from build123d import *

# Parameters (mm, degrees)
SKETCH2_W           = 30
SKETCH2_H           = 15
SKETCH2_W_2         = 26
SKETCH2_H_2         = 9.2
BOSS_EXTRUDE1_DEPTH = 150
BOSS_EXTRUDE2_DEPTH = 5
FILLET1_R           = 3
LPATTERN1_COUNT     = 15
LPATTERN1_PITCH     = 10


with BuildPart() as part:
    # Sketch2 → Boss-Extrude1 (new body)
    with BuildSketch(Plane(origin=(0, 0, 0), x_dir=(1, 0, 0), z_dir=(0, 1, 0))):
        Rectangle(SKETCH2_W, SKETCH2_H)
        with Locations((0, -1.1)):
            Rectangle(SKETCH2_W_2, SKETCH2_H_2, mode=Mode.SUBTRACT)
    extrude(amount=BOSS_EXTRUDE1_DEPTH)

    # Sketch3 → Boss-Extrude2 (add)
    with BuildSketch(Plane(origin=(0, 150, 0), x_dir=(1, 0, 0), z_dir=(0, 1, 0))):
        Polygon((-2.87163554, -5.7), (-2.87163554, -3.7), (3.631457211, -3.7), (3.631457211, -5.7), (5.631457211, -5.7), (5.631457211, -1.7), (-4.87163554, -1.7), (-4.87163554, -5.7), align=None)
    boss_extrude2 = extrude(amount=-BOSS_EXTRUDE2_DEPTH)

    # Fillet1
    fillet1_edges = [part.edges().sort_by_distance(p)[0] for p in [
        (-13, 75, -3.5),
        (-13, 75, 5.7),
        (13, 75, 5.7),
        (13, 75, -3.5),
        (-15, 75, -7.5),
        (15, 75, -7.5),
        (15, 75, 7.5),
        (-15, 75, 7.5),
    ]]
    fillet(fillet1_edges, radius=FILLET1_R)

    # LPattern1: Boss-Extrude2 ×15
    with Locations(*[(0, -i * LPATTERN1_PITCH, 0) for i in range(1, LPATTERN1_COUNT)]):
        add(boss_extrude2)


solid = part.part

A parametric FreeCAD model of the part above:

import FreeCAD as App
import Part
import Sketcher

V = App.Vector


def edges_at(feature, points):
    """Names of the edges that pass closest to the given points."""
    edges = feature.Shape.Edges
    near = lambda p: min(range(len(edges)), key=lambda i: edges[i].distToShape(Part.Vertex(*p))[0])
    return sorted({f"Edge{near(p) + 1}" for p in points})


def add_polygon(sketch, points):
    """Adds a closed chain of lines whose ends are joined by coincident constraints."""
    first, n = sketch.GeometryCount, len(points)
    for a, b in zip(points, points[1:] + points[:1]):
        sketch.addGeometry(Part.LineSegment(App.Vector(*a, 0), App.Vector(*b, 0)), False)
    for i in range(n):
        sketch.addConstraint(Sketcher.Constraint("Coincident", first + i, 2, first + (i + 1) % n, 1))

doc = App.newDocument("Part")
params = doc.addObject("Spreadsheet::Sheet", "Params")
for row, (alias, value) in enumerate([
    ("sketch1_width", "30 mm"),
    ("sketch1_width2", "26 mm"),
    ("sketch1_height", "15 mm"),
    ("sketch1_height2", "9.2 mm"),
    ("pad1_length", "150 mm"),
    ("sketch2_width", "2 mm"),
    ("sketch2_height", "4 mm"),
    ("pad2_length", "5 mm"),
    ("fillet_radius", "3 mm"),
    ("linearpattern_pitch", "10 mm"),
], start=1):
    params.set(f"A{row}", alias)
    params.set(f"B{row}", "=" + value)
    params.setAlias(f"B{row}", alias)

body = doc.addObject("PartDesign::Body", "Body")

# Sketch on XZ plane
sketch1 = body.newObject("Sketcher::SketchObject", "Sketch")
sketch1.AttachmentSupport = (doc.getObject("XZ_Plane"), [""])
sketch1.MapMode = "FlatFace"
add_polygon(sketch1, [(-15, -8), (-15, 8), (15, 8), (15, -8)])  # lines 0-3
add_polygon(sketch1, [(13, 6), (-13, 6), (-13, -4), (13, -4)])  # lines 4-7
sketch1.addConstraint([
    Sketcher.Constraint("Vertical", 0),
    Sketcher.Constraint("Horizontal", 1),
    Sketcher.Constraint("Vertical", 2),
    Sketcher.Constraint("Horizontal", 3),
    Sketcher.Constraint("Horizontal", 4),
    Sketcher.Constraint("Vertical", 5),
    Sketcher.Constraint("Horizontal", 6),
    Sketcher.Constraint("Vertical", 7),
    Sketcher.Constraint("Symmetric", 0, 2, 2, 2, -1, 1),
    Sketcher.Constraint("DistanceX", 1, 1, 1, 2, 30.0),
    Sketcher.Constraint("DistanceX", 4, 2, 4, 1, 26.0),
    Sketcher.Constraint("DistanceY", 0, 1, 0, 2, 15.0),
    Sketcher.Constraint("DistanceY", 5, 2, 5, 1, 9.2),
    Sketcher.Constraint("DistanceX", 4, 2, -1, 1, 13.0),
    Sketcher.Constraint("DistanceY", 3, 2, 5, 2, 4.0),
])
sketch1.setExpression("Constraints[17]", "Params.sketch1_width")
sketch1.setExpression("Constraints[18]", "Params.sketch1_width2")
sketch1.setExpression("Constraints[19]", "Params.sketch1_height")
sketch1.setExpression("Constraints[20]", "Params.sketch1_height2")
pad1 = body.newObject("PartDesign::Pad", "Pad")
pad1.Profile = sketch1
pad1.setExpression("Length", "Params.pad1_length")
pad1.Reversed = True

# Sketch on XZ plane
sketch2 = body.newObject("Sketcher::SketchObject", "Sketch001")
sketch2.AttachmentSupport = (doc.getObject("XZ_Plane"), [""])
sketch2.MapMode = "FlatFace"
sketch2.AttachmentOffset = App.Placement(V(0, 0, -150), App.Rotation())
add_polygon(sketch2, [(-2.9, 5.7), (-2.9, 3.7), (3.6, 3.7), (3.6, 5.7), (5.6, 5.7), (5.6, 1.7), (-4.9, 1.7), (-4.9, 5.7)])  # lines 0-7
sketch2.addConstraint([
    Sketcher.Constraint("Vertical", 0),
    Sketcher.Constraint("Horizontal", 1),
    Sketcher.Constraint("Vertical", 2),
    Sketcher.Constraint("Horizontal", 3),
    Sketcher.Constraint("Vertical", 4),
    Sketcher.Constraint("Horizontal", 5),
    Sketcher.Constraint("Vertical", 6),
    Sketcher.Constraint("Horizontal", 7),
    Sketcher.Constraint("Horizontal", 3, 2, 6, 2),
    Sketcher.Constraint("Equal", 3, 7),
    Sketcher.Constraint("Equal", 7, 0),
    Sketcher.Constraint("DistanceX", 3, 1, 3, 2, 2.0),
    Sketcher.Constraint("DistanceY", 4, 2, 4, 1, 4.0),
    Sketcher.Constraint("DistanceY", -1, 1, 0, 2, 3.7),
    Sketcher.Constraint("DistanceX", 1, 1, 1, 2, 6.503093),
    Sketcher.Constraint("DistanceX", 0, 2, -1, 1, 2.871636),
])
sketch2.setExpression("Constraints[19]", "Params.sketch2_width")
sketch2.setExpression("Constraints[20]", "Params.sketch2_height")
pad2 = body.newObject("PartDesign::Pad", "Pad001")
pad2.Profile = sketch2
pad2.setExpression("Length", "Params.pad2_length")
doc.recompute()

fillet = body.newObject("PartDesign::Fillet", "Fillet")
fillet.Base = (pad2, edges_at(pad2, [
    (-13, 75, -3.5),
    (-13, 75, 5.7),
    (13, 75, 5.7),
    (13, 75, -3.5),
    (-15, 75, -7.5),
    (15, 75, -7.5),
    (15, 75, 7.5),
    (-15, 75, 7.5),
]))
fillet.setExpression("Radius", "Params.fillet_radius")
doc.recompute()

linearpattern = body.newObject("PartDesign::LinearPattern", "LinearPattern")
linearpattern.Originals = [pad2]
linearpattern.Direction = (doc.getObject("Y_Axis"), [""])
linearpattern.Mode = "offset"
linearpattern.setExpression("Offset", "Params.linearpattern_pitch")
linearpattern.Occurrences = 15
linearpattern.Reversed = True
body.Tip = linearpattern

doc.recompute()
